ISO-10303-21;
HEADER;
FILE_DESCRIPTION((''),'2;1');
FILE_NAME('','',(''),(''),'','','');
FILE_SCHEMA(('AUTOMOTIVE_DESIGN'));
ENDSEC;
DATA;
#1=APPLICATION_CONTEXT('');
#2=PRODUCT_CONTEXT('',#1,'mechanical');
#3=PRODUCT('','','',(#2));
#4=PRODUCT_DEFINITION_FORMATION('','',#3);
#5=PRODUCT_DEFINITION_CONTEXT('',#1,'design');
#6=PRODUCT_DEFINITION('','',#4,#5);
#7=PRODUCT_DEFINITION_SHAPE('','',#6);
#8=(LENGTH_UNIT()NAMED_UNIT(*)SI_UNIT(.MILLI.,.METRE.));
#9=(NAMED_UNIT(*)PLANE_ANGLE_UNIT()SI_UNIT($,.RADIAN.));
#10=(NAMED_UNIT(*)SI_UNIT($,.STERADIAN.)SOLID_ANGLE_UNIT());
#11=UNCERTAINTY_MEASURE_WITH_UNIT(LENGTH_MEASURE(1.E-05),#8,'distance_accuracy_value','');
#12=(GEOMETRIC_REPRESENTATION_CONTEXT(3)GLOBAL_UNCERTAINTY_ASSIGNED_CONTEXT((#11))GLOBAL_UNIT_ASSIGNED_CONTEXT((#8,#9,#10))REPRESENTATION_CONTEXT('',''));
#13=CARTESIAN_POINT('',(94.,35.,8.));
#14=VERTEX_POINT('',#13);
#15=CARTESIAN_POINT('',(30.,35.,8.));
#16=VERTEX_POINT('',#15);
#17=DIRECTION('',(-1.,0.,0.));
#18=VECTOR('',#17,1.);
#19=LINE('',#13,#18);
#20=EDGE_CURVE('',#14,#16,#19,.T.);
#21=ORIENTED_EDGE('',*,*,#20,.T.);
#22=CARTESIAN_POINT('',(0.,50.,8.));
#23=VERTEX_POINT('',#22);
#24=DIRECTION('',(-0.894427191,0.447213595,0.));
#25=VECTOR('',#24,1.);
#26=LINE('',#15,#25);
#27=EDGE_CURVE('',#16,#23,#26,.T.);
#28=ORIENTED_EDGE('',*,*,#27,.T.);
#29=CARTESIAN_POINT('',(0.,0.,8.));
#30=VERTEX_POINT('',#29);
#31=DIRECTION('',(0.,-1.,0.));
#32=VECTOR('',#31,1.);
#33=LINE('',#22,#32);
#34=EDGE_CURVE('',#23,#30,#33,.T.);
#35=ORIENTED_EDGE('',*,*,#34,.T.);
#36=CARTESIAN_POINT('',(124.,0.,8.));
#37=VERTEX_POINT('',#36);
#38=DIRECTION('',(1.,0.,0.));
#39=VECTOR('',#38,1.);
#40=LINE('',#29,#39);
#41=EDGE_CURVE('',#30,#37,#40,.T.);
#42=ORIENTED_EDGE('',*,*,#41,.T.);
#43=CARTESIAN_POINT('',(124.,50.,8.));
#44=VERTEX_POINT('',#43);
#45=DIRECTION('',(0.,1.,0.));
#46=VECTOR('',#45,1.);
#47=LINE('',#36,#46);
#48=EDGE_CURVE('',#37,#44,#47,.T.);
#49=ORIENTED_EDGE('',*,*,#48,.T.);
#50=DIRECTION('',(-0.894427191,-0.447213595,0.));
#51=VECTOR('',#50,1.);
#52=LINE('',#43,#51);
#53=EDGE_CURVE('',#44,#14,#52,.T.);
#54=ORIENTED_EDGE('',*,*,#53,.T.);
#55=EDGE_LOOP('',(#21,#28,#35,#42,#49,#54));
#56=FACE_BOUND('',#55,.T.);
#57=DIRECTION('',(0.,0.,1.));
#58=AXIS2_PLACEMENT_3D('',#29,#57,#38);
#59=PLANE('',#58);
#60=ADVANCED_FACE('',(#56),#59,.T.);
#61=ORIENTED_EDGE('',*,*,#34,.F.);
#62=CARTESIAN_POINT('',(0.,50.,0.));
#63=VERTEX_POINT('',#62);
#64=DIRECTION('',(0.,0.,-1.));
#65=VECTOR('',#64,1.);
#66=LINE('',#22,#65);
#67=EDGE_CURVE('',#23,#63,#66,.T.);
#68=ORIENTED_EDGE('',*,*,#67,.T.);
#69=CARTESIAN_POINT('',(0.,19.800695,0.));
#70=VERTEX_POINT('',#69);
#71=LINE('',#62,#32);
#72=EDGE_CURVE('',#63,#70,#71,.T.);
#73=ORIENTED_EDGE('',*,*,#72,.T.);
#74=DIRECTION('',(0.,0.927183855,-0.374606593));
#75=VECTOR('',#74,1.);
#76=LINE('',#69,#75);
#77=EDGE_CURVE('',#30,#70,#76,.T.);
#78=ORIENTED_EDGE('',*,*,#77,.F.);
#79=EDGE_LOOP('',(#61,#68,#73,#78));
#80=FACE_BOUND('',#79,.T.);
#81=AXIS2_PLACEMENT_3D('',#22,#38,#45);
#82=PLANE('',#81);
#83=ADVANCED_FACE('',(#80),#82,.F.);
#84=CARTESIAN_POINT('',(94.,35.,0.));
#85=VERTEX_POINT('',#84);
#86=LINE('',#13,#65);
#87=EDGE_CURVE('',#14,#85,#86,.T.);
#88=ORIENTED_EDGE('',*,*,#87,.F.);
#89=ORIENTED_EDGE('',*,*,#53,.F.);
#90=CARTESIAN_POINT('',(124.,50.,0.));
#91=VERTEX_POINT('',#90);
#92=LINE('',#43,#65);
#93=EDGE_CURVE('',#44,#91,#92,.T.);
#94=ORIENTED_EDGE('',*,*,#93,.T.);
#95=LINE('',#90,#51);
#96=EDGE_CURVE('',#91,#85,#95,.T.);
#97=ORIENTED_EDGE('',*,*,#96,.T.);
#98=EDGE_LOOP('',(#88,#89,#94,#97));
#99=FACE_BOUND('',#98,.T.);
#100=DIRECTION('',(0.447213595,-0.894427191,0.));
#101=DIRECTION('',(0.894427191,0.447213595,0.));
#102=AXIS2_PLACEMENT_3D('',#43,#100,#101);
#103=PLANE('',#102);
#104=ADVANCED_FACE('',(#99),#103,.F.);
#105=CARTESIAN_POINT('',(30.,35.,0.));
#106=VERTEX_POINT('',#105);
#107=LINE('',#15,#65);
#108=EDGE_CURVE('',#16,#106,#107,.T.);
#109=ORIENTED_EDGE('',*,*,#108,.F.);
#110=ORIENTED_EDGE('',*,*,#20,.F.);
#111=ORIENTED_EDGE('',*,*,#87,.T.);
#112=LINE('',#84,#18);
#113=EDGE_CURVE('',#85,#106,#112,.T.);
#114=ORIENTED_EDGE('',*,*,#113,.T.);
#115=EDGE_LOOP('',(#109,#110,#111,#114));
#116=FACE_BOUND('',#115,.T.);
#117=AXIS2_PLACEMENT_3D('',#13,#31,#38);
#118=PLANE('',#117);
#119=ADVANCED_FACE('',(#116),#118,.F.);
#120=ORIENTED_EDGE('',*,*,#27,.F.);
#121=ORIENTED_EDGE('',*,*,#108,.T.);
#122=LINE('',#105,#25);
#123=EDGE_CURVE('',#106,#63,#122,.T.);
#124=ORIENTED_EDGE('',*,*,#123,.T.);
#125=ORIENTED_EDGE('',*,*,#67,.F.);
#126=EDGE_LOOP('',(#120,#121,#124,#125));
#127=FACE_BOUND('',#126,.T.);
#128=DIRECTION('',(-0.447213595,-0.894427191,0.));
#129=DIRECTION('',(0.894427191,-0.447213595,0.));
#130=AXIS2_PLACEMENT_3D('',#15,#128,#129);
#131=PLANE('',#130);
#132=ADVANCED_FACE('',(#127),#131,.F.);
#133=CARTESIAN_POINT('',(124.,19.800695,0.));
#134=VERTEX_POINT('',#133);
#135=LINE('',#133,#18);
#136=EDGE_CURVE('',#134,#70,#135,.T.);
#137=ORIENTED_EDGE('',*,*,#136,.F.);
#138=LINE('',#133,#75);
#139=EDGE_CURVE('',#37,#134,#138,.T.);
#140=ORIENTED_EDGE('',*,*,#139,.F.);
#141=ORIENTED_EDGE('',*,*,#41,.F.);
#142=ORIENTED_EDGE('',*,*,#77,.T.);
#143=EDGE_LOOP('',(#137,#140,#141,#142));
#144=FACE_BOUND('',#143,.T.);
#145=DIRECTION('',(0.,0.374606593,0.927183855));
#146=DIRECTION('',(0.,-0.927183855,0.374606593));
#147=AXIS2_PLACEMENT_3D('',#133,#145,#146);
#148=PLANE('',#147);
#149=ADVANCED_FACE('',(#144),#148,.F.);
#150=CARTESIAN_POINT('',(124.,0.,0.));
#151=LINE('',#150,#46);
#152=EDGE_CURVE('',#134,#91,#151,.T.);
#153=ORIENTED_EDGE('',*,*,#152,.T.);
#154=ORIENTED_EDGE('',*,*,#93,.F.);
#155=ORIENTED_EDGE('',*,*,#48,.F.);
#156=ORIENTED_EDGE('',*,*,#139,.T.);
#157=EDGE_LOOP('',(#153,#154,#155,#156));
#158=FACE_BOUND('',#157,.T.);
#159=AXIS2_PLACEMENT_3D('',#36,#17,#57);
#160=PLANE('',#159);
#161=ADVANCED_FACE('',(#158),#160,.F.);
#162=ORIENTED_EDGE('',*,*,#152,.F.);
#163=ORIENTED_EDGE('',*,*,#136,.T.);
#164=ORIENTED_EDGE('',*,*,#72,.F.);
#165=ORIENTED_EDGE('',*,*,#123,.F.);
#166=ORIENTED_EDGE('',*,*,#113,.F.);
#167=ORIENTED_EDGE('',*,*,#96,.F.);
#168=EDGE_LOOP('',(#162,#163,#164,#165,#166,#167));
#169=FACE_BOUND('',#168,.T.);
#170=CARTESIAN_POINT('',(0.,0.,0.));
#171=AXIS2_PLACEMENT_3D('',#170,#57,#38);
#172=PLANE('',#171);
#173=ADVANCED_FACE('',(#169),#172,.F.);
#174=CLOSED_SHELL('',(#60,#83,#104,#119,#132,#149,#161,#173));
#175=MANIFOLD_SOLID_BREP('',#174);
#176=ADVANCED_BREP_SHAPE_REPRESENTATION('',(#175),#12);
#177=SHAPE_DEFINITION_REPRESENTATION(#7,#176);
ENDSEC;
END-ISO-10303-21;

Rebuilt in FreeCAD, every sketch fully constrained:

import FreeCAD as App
import Part
import Sketcher
from FreeCAD import Vector
Q = App.Units.Quantity

doc = App.newDocument("Part")
body = doc.addObject("PartDesign::Body", "Body")

sketch1 = body.newObject("Sketcher::SketchObject", "Sketch")
sketch1.AttachmentSupport = (doc.getObject("XY_Plane"), [""])
sketch1.MapMode = "FlatFace"
sketch1.addGeometry(Part.LineSegment(Vector(0, 0, 0), Vector(124, 0, 0)), False)
sketch1.addGeometry(Part.LineSegment(Vector(124, 0, 0), Vector(124, 50, 0)), False)
sketch1.addGeometry(Part.LineSegment(Vector(124, 50, 0), Vector(94, 35, 0)), False)
sketch1.addGeometry(Part.LineSegment(Vector(94, 35, 0), Vector(30, 35, 0)), False)
sketch1.addGeometry(Part.LineSegment(Vector(30, 35, 0), Vector(0, 50, 0)), False)
sketch1.addGeometry(Part.LineSegment(Vector(0, 50, 0), Vector(0, 0, 0)), False)
sketch1.addConstraint(Sketcher.Constraint("Coincident", 0, 2, 1, 1))
sketch1.addConstraint(Sketcher.Constraint("Coincident", 1, 2, 2, 1))
sketch1.addConstraint(Sketcher.Constraint("Coincident", 2, 2, 3, 1))
sketch1.addConstraint(Sketcher.Constraint("Coincident", 3, 2, 4, 1))
sketch1.addConstraint(Sketcher.Constraint("Coincident", 4, 2, 5, 1))
sketch1.addConstraint(Sketcher.Constraint("Coincident", 5, 2, 0, 1))
sketch1.addConstraint(Sketcher.Constraint("Horizontal", 0))
sketch1.addConstraint(Sketcher.Constraint("Vertical", 1))
sketch1.addConstraint(Sketcher.Constraint("Horizontal", 3))
sketch1.addConstraint(Sketcher.Constraint("Vertical", 5))
sketch1.addConstraint(Sketcher.Constraint("Coincident", 5, 2, -1, 1))
sketch1.addConstraint(Sketcher.Constraint("Horizontal", 1, 2, 4, 2))
sketch1.addConstraint(Sketcher.Constraint("Equal", 2, 4))
sketch1.addConstraint(Sketcher.Constraint("DistanceX", 0, 1, 0, 2, 124.0))
sketch1.addConstraint(Sketcher.Constraint("DistanceX", 3, 2, 3, 1, 64.0))
sketch1.addConstraint(Sketcher.Constraint("DistanceY", 1, 1, 1, 2, 50.0))
sketch1.addConstraint(Sketcher.Constraint("DistanceY", -1, 1, 2, 2, 35.0))
pad1 = body.newObject("PartDesign::Pad", "Pad")
pad1.Profile = sketch1
pad1.Length = 8

sketch2 = body.newObject("Sketcher::SketchObject", "Sketch001")
sketch2.AttachmentSupport = (doc.getObject("YZ_Plane"), [""])
sketch2.MapMode = "FlatFace"
sketch2.addGeometry(Part.LineSegment(Vector(0, 0, 0), Vector(0, 8, 0)), False)
sketch2.addGeometry(Part.LineSegment(Vector(0, 8, 0), Vector(20, 0, 0)), False)
sketch2.addGeometry(Part.LineSegment(Vector(20, 0, 0), Vector(0, 0, 0)), False)
sketch2.addConstraint(Sketcher.Constraint("Coincident", 0, 2, 1, 1))
sketch2.addConstraint(Sketcher.Constraint("Coincident", 1, 2, 2, 1))
sketch2.addConstraint(Sketcher.Constraint("Coincident", 2, 2, 0, 1))
sketch2.addConstraint(Sketcher.Constraint("Vertical", 0))
sketch2.addConstraint(Sketcher.Constraint("Horizontal", 2))
sketch2.addConstraint(Sketcher.Constraint("Coincident", 2, 2, -1, 1))
sketch2.addConstraint(Sketcher.Constraint("DistanceY", 0, 1, 0, 2, 8.0))
sketch2.addConstraint(Sketcher.Constraint("Angle", 1, Q("-22 deg")))
pocket1 = body.newObject("PartDesign::Pocket", "Pocket")
pocket1.Profile = sketch2
pocket1.Type = "ThroughAll"
pocket1.Reversed = True

doc.recompute()
